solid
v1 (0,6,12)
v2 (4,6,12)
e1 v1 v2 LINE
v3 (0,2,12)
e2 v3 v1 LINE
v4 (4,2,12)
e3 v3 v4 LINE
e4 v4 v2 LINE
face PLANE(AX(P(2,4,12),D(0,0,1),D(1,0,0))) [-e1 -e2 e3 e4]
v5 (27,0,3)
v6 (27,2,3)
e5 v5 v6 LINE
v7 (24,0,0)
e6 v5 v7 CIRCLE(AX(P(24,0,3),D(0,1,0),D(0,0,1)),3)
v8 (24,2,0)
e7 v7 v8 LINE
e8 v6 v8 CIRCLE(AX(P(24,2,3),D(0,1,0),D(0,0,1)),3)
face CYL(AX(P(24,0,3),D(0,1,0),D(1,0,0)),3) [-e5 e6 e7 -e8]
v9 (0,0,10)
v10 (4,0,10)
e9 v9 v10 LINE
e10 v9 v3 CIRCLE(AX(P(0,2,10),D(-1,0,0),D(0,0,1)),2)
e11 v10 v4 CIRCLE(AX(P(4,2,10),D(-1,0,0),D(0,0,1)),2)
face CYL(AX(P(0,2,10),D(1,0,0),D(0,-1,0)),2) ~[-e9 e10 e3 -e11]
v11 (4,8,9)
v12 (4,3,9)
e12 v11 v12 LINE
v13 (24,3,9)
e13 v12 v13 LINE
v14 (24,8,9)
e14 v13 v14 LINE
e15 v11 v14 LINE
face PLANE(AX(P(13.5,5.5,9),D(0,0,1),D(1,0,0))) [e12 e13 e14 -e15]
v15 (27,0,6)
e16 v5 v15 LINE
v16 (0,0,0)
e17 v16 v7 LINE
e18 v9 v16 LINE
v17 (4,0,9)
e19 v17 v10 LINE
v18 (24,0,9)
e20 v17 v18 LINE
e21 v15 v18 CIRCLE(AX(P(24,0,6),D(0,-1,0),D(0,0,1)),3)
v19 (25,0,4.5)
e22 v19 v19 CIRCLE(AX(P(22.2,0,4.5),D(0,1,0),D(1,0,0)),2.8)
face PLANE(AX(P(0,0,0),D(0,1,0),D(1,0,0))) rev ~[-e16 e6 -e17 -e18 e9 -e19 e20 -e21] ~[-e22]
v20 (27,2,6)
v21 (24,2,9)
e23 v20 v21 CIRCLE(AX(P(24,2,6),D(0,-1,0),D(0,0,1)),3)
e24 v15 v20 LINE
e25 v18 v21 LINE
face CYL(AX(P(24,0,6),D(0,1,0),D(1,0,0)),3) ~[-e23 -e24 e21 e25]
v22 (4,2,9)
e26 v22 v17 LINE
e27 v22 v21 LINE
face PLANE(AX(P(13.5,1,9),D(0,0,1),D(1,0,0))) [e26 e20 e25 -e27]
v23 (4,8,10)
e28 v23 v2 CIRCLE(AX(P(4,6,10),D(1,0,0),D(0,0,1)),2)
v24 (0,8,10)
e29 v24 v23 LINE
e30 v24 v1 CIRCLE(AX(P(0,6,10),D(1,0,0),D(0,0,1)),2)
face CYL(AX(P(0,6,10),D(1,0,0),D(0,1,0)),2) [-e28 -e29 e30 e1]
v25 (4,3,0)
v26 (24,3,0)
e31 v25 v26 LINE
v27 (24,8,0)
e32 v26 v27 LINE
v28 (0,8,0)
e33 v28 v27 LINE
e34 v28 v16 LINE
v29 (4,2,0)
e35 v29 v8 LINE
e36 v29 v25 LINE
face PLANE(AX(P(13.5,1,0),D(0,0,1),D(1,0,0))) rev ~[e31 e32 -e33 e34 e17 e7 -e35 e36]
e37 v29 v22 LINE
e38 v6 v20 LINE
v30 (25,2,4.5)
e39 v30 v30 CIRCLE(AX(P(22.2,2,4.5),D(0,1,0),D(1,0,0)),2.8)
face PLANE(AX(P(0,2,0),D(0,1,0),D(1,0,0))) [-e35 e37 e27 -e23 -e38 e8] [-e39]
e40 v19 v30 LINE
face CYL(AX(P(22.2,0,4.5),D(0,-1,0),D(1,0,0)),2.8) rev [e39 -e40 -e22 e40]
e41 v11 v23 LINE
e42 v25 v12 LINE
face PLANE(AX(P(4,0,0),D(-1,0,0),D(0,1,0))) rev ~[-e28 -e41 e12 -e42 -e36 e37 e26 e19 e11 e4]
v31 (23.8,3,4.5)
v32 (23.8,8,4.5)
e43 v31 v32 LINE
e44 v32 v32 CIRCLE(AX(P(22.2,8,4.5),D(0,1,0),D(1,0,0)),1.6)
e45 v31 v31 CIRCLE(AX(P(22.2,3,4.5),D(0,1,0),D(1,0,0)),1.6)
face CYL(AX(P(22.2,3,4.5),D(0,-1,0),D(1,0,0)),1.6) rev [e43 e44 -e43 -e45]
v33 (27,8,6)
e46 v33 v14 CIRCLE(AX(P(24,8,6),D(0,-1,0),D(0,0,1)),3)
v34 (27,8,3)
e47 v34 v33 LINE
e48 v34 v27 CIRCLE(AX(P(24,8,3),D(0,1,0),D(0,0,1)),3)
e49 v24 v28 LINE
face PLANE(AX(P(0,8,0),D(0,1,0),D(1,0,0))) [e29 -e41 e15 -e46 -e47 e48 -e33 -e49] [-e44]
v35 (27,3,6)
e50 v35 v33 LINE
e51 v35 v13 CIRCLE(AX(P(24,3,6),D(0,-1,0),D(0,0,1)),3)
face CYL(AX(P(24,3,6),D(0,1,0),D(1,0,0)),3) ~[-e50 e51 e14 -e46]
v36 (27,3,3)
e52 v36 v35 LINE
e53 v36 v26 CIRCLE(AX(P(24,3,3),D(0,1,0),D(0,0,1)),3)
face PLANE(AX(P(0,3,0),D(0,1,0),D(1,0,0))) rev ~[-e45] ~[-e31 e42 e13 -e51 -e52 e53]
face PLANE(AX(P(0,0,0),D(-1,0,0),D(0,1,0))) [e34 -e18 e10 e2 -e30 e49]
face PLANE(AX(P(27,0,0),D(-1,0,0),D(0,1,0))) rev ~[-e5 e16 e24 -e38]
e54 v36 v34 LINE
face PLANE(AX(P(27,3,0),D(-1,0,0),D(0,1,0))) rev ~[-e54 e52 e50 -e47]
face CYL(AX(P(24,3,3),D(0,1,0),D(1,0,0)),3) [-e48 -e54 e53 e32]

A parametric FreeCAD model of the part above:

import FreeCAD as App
import Part
import Sketcher
from FreeCAD import Vector
Q = App.Units.Quantity


def edges_at(feature, points):
    """Names of the edges that pass closest to the given points."""
    edges = feature.Shape.Edges
    near = lambda p: min(range(len(edges)), key=lambda i: edges[i].distToShape(Part.Vertex(*p))[0])
    return sorted({f"Edge{near(p) + 1}" for p in points})

doc = App.newDocument("Part")
body = doc.addObject("PartDesign::Body", "Body")

sketch1 = body.newObject("Sketcher::SketchObject", "Sketch")
sketch1.AttachmentSupport = (doc.getObject("XZ_Plane"), [""])
sketch1.MapMode = "FlatFace"
sketch1.AttachmentOffset = App.Placement(Vector(0, 0, -3), App.Rotation())
sketch1.addGeometry(Part.Circle(Vector(22.2, 4.5, 0), Vector(0, 0, 1), 1.6), False)
sketch1.addConstraint([
    Sketcher.Constraint("Diameter", 0, Q("3.2 mm")),
    Sketcher.Constraint("DistanceX", -1, 1, 0, 3, Q("22.2 mm")),
    Sketcher.Constraint("DistanceY", -1, 1, 0, 3, Q("4.5 mm")),
])
pad1 = body.newObject("PartDesign::Pad", "Pad")
pad1.Profile = sketch1
pad1.Length = 5
pad1.Reversed = True
body2 = doc.addObject("PartDesign::Body", "Body001")

sketch2 = body2.newObject("Sketcher::SketchObject", "Sketch001")
sketch2.AttachmentSupport = (doc.getObject("XY_Plane001"), [""])
sketch2.MapMode = "FlatFace"
sketch2.addGeometry([
    Part.LineSegment(Vector(0, 8, 0), Vector(0, 3, 0)),
    Part.LineSegment(Vector(0, 3, 0), Vector(27, 3, 0)),
    Part.LineSegment(Vector(27, 3, 0), Vector(27, 8, 0)),
    Part.LineSegment(Vector(27, 8, 0), Vector(0, 8, 0)),
], False)
sketch2.addConstraint([
    Sketcher.Constraint("Coincident", 0, 2, 1, 1),
    Sketcher.Constraint("Coincident", 1, 2, 2, 1),
    Sketcher.Constraint("Coincident", 2, 2, 3, 1),
    Sketcher.Constraint("Coincident", 3, 2, 0, 1),
    Sketcher.Constraint("Vertical", 0),
    Sketcher.Constraint("Horizontal", 1),
    Sketcher.Constraint("Vertical", 2),
    Sketcher.Constraint("Horizontal", 3),
    Sketcher.Constraint("PointOnObject", 0, 2, -2),
    Sketcher.Constraint("DistanceX", 1, 1, 1, 2, Q("27 mm")),
    Sketcher.Constraint("DistanceY", 0, 2, 0, 1, Q("5 mm")),
    Sketcher.Constraint("DistanceY", -1, 1, 0, 2, Q("3 mm")),
])
pad2 = body2.newObject("PartDesign::Pad", "Pad001")
pad2.Profile = sketch2
pad2.Length = 9
doc.recompute()

fillet = body2.newObject("PartDesign::Fillet", "Fillet")
fillet.Base = (pad2, edges_at(pad2, [(27, 5.5, 9), (27, 5.5, 0)]))
fillet.Radius = 3
doc.recompute()

boolean = body2.newObject("PartDesign::Boolean", "Boolean")
boolean.Type = "Cut"
boolean.addObjects([body])
body3 = doc.addObject("PartDesign::Body", "Body002")

sketch3 = body3.newObject("Sketcher::SketchObject", "Sketch002")
sketch3.AttachmentSupport = (doc.getObject("XY_Plane002"), [""])
sketch3.MapMode = "FlatFace"
sketch3.addGeometry([
    Part.LineSegment(Vector(0, 8, 0), Vector(0, 0, 0)),
    Part.LineSegment(Vector(0, 0, 0), Vector(4, 0, 0)),
    Part.LineSegment(Vector(4, 0, 0), Vector(4, 8, 0)),
    Part.LineSegment(Vector(4, 8, 0), Vector(0, 8, 0)),
], False)
sketch3.addConstraint([
    Sketcher.Constraint("Coincident", 0, 2, 1, 1),
    Sketcher.Constraint("Coincident", 1, 2, 2, 1),
    Sketcher.Constraint("Coincident", 2, 2, 3, 1),
    Sketcher.Constraint("Coincident", 3, 2, 0, 1),
    Sketcher.Constraint("Vertical", 0),
    Sketcher.Constraint("Horizontal", 1),
    Sketcher.Constraint("Vertical", 2),
    Sketcher.Constraint("Horizontal", 3),
    Sketcher.Constraint("Coincident", 0, 2, -1, 1),
    Sketcher.Constraint("DistanceX", 1, 1, 1, 2, Q("4 mm")),
    Sketcher.Constraint("DistanceY", 0, 2, 0, 1, Q("8 mm")),
])
pad3 = body3.newObject("PartDesign::Pad", "Pad002")
pad3.Profile = sketch3
pad3.Length = 12
doc.recompute()

fillet2 = body3.newObject("PartDesign::Fillet", "Fillet001")
fillet2.Base = (pad3, edges_at(pad3, [(2, 0, 12), (2, 8, 12)]))
fillet2.Radius = 2
body4 = doc.addObject("PartDesign::Body", "Body003")

sketch4 = body4.newObject("Sketcher::SketchObject", "Sketch003")
sketch4.AttachmentSupport = (doc.getObject("XZ_Plane003"), [""])
sketch4.MapMode = "FlatFace"
sketch4.addGeometry(Part.Circle(Vector(22.2, 4.5, 0), Vector(0, 0, 1), 2.8), False)
sketch4.addConstraint([
    Sketcher.Constraint("Diameter", 0, Q("5.6 mm")),
    Sketcher.Constraint("DistanceX", -1, 1, 0, 3, Q("22.2 mm")),
    Sketcher.Constraint("DistanceY", -1, 1, 0, 3, Q("4.5 mm")),
])
pad4 = body4.newObject("PartDesign::Pad", "Pad003")
pad4.Profile = sketch4
pad4.Length = 2
pad4.Reversed = True
body5 = doc.addObject("PartDesign::Body", "Body004")
body5.AllowCompound = True

sketch5 = body5.newObject("Sketcher::SketchObject", "Sketch004")
sketch5.AttachmentSupport = (doc.getObject("XY_Plane004"), [""])
sketch5.MapMode = "FlatFace"
sketch5.addGeometry([
    Part.LineSegment(Vector(0, 2, 0), Vector(0, 0, 0)),
    Part.LineSegment(Vector(0, 0, 0), Vector(27, 0, 0)),
    Part.LineSegment(Vector(27, 0, 0), Vector(27, 2, 0)),
    Part.LineSegment(Vector(27, 2, 0), Vector(0, 2, 0)),
], False)
sketch5.addConstraint([
    Sketcher.Constraint("Coincident", 0, 2, 1, 1),
    Sketcher.Constraint("Coincident", 1, 2, 2, 1),
    Sketcher.Constraint("Coincident", 2, 2, 3, 1),
    Sketcher.Constraint("Coincident", 3, 2, 0, 1),
    Sketcher.Constraint("Vertical", 0),
    Sketcher.Constraint("Horizontal", 1),
    Sketcher.Constraint("Vertical", 2),
    Sketcher.Constraint("Horizontal", 3),
    Sketcher.Constraint("Coincident", 0, 2, -1, 1),
    Sketcher.Constraint("DistanceX", 1, 1, 1, 2, Q("27 mm")),
    Sketcher.Constraint("DistanceY", 0, 2, 0, 1, Q("2 mm")),
])
pad5 = body5.newObject("PartDesign::Pad", "Pad004")
pad5.Profile = sketch5
pad5.Length = 9
doc.recompute()

fillet3 = body5.newObject("PartDesign::Fillet", "Fillet002")
fillet3.Base = (pad5, edges_at(pad5, [(27, 1, 9), (27, 1, 0)]))
fillet3.Radius = 3
doc.recompute()

boolean2 = body5.newObject("PartDesign::Boolean", "Boolean001")
boolean2.Type = "Cut"
boolean2.addObjects([body4])
doc.recompute()

boolean3 = body5.newObject("PartDesign::Boolean", "Boolean002")
boolean3.Type = "Fuse"
boolean3.addObjects([body2])
doc.recompute()

boolean4 = body5.newObject("PartDesign::Boolean", "Boolean003")
boolean4.Type = "Fuse"
boolean4.addObjects([body3])

doc.recompute()
